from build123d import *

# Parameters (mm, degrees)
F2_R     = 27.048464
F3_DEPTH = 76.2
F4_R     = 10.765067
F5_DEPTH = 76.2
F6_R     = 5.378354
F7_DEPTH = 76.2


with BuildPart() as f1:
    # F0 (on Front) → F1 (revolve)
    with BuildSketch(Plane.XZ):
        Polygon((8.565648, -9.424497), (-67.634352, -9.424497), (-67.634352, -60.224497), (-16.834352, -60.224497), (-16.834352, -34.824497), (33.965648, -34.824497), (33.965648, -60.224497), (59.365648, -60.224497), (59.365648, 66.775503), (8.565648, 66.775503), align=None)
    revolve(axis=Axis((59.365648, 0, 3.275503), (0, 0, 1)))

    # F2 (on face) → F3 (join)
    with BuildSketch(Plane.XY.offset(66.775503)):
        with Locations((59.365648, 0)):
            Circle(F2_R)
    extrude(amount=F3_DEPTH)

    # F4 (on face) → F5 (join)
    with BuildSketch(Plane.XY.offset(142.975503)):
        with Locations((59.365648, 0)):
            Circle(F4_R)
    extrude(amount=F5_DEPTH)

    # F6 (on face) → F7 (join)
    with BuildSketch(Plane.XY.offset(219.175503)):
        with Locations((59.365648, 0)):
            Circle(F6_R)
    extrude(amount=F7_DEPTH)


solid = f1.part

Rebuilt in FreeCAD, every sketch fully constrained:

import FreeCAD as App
import Part
import Sketcher
Q = App.Units.Quantity

doc = App.newDocument("Part")
body = doc.addObject("PartDesign::Body", "Body")

sketch1 = body.newObject("Sketcher::SketchObject", "Sketch")
sketch1.AttachmentSupport = (doc.getObject("XZ_Plane"), [""])
sketch1.MapMode = "FlatFace"
sketch1.addGeometry([
    Part.LineSegment(App.Vector(9, -9, 0), App.Vector(-68, -9, 0)),
    Part.LineSegment(App.Vector(-68, -9, 0), App.Vector(-68, -60, 0)),
    Part.LineSegment(App.Vector(-68, -60, 0), App.Vector(-17, -60, 0)),
    Part.LineSegment(App.Vector(-17, -60, 0), App.Vector(-17, -35, 0)),
    Part.LineSegment(App.Vector(-17, -35, 0), App.Vector(34, -35, 0)),
    Part.LineSegment(App.Vector(34, -35, 0), App.Vector(34, -60, 0)),
    Part.LineSegment(App.Vector(34, -60, 0), App.Vector(59, -60, 0)),
    Part.LineSegment(App.Vector(59, -60, 0), App.Vector(59, 67, 0)),
    Part.LineSegment(App.Vector(59, 67, 0), App.Vector(9, 67, 0)),
    Part.LineSegment(App.Vector(9, 67, 0), App.Vector(9, -9, 0)),
], False)
sketch1.addGeometry(Part.LineSegment(App.Vector(59, -60, 0), App.Vector(59, 67, 0)), True)
sketch1.addConstraint([
    Sketcher.Constraint("Coincident", 0, 2, 1, 1),
    Sketcher.Constraint("Coincident", 1, 2, 2, 1),
    Sketcher.Constraint("Coincident", 2, 2, 3, 1),
    Sketcher.Constraint("Coincident", 3, 2, 4, 1),
    Sketcher.Constraint("Coincident", 4, 2, 5, 1),
    Sketcher.Constraint("Coincident", 5, 2, 6, 1),
    Sketcher.Constraint("Coincident", 6, 2, 7, 1),
    Sketcher.Constraint("Coincident", 7, 2, 8, 1),
    Sketcher.Constraint("Coincident", 8, 2, 9, 1),
    Sketcher.Constraint("Coincident", 9, 2, 0, 1),
    Sketcher.Constraint("Horizontal", 0),
    Sketcher.Constraint("Vertical", 1),
    Sketcher.Constraint("Horizontal", 2),
    Sketcher.Constraint("Vertical", 3),
    Sketcher.Constraint("Horizontal", 4),
    Sketcher.Constraint("Vertical", 5),
    Sketcher.Constraint("Horizontal", 6),
    Sketcher.Constraint("Vertical", 7),
    Sketcher.Constraint("Horizontal", 8),
    Sketcher.Constraint("Vertical", 9),
    Sketcher.Constraint("Vertical", 10),
    Sketcher.Constraint("Coincident", 10, 1, 6, 2),
    Sketcher.Constraint("Horizontal", 2, 2, 5, 2),
    Sketcher.Constraint("Horizontal", 8, 2, 10, 2),
    Sketcher.Constraint("Equal", 2, 4),
    Sketcher.Constraint("Equal", 4, 8),
    Sketcher.Constraint("Equal", 8, 1),
    Sketcher.Constraint("Equal", 6, 3),
    Sketcher.Constraint("Equal", 0, 9),
    Sketcher.Constraint("DistanceX", 0, 2, 0, 1, Q("3 in")),
    Sketcher.Constraint("DistanceX", 2, 1, 2, 2, Q("2 in")),
    Sketcher.Constraint("DistanceX", 2, 2, -1, 1, 16.834352),
    Sketcher.Constraint("DistanceY", 0, 2, -1, 1, 9.424497),
])
revolution = body.newObject("PartDesign::Revolution", "Revolution")
revolution.Profile = sketch1
revolution.ReferenceAxis = (sketch1, ["Axis0"])
revolution.Angle = 360

sketch2 = body.newObject("Sketcher::SketchObject", "Sketch001")
sketch2.AttachmentSupport = (doc.getObject("XY_Plane"), [""])
sketch2.MapMode = "FlatFace"
sketch2.AttachmentOffset = App.Placement(App.Vector(0, 0, 66.775503), App.Rotation())
sketch2.addGeometry(Part.Circle(App.Vector(59, 0, 0), App.Vector(0, 0, 1), 27), False)
sketch2.addConstraint([
    Sketcher.Constraint("PointOnObject", 0, 3, -1),
    Sketcher.Constraint("Diameter", 0, 54.096928),
    Sketcher.Constraint("DistanceX", -1, 1, 0, 3, 59.365648),
])
pad1 = body.newObject("PartDesign::Pad", "Pad")
pad1.Profile = sketch2
pad1.Length = Q("3 in")

sketch3 = body.newObject("Sketcher::SketchObject", "Sketch002")
sketch3.AttachmentSupport = (doc.getObject("XY_Plane"), [""])
sketch3.MapMode = "FlatFace"
sketch3.AttachmentOffset = App.Placement(App.Vector(0, 0, 142.975503), App.Rotation())
sketch3.addGeometry(Part.Circle(App.Vector(59, 0, 0), App.Vector(0, 0, 1), 11), False)
sketch3.addConstraint([
    Sketcher.Constraint("PointOnObject", 0, 3, -1),
    Sketcher.Constraint("Diameter", 0, 21.530134),
    Sketcher.Constraint("DistanceX", -1, 1, 0, 3, 59.365648),
])
pad2 = body.newObject("PartDesign::Pad", "Pad001")
pad2.Profile = sketch3
pad2.Length = Q("3 in")

sketch4 = body.newObject("Sketcher::SketchObject", "Sketch003")
sketch4.AttachmentSupport = (doc.getObject("XY_Plane"), [""])
sketch4.MapMode = "FlatFace"
sketch4.AttachmentOffset = App.Placement(App.Vector(0, 0, 219.175503), App.Rotation())
sketch4.addGeometry(Part.Circle(App.Vector(59, 0, 0), App.Vector(0, 0, 1), 5), False)
sketch4.addConstraint([
    Sketcher.Constraint("PointOnObject", 0, 3, -1),
    Sketcher.Constraint("Diameter", 0, 10.756708),
    Sketcher.Constraint("DistanceX", -1, 1, 0, 3, 59.365648),
])
pad3 = body.newObject("PartDesign::Pad", "Pad002")
pad3.Profile = sketch4
pad3.Length = Q("3 in")

doc.recompute()
